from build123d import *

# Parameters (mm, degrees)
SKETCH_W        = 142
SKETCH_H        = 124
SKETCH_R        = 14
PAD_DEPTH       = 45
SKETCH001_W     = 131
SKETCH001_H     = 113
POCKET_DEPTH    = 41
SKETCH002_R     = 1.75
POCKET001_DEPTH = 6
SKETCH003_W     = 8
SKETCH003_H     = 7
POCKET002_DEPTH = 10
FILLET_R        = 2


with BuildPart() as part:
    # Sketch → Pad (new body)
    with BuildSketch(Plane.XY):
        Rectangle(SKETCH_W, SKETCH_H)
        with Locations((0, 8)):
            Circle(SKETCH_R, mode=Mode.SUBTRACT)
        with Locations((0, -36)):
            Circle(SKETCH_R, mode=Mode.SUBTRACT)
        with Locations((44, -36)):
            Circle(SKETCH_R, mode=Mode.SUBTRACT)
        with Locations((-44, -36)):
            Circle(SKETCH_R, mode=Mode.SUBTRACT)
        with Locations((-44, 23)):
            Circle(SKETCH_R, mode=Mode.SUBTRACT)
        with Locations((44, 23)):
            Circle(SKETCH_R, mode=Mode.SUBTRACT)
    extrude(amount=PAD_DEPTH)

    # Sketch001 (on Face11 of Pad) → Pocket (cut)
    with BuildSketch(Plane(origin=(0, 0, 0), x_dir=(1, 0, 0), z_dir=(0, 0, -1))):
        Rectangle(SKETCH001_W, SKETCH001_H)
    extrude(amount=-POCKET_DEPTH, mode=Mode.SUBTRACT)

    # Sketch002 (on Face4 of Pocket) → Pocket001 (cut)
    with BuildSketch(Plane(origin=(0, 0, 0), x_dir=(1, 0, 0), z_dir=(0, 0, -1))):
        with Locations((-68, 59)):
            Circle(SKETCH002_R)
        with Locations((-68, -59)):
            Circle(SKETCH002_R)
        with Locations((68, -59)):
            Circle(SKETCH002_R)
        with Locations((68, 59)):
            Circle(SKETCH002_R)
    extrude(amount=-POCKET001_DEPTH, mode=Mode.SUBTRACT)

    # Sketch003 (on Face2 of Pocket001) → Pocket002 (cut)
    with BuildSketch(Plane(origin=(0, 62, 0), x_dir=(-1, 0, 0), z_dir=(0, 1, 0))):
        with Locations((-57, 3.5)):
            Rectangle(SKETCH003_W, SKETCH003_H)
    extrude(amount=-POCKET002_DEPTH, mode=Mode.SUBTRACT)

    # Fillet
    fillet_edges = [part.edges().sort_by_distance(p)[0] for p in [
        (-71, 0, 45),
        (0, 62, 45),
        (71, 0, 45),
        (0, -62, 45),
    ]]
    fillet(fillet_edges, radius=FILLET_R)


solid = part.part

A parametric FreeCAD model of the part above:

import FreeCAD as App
import Part
import Sketcher

V = App.Vector
Q = App.Units.Quantity


def edges_at(feature, points):
    """Names of the edges that pass closest to the given points."""
    edges = feature.Shape.Edges
    near = lambda p: min(range(len(edges)), key=lambda i: edges[i].distToShape(Part.Vertex(*p))[0])
    return sorted({f"Edge{near(p) + 1}" for p in points})


def add_polygon(sketch, points):
    """Adds a closed chain of lines whose ends are joined by coincident constraints."""
    first, n = sketch.GeometryCount, len(points)
    for a, b in zip(points, points[1:] + points[:1]):
        sketch.addGeometry(Part.LineSegment(App.Vector(*a, 0), App.Vector(*b, 0)), False)
    for i in range(n):
        sketch.addConstraint(Sketcher.Constraint("Coincident", first + i, 2, first + (i + 1) % n, 1))

doc = App.newDocument("Part")
body = doc.addObject("PartDesign::Body", "Body")

# Sketch on XY plane
sketch1 = body.newObject("Sketcher::SketchObject", "Sketch")
sketch1.AttachmentSupport = (doc.getObject("XY_Plane"), [""])
sketch1.MapMode = "FlatFace"
add_polygon(sketch1, [(-71, 62), (-71, -62), (71, -62), (71, 62)])  # lines 0-3
sketch1.addGeometry(Part.Circle(V(-44, -36, 0), V(0, 0, 1), 14), False)  # 4
sketch1.addGeometry(Part.Circle(V(0, -36, 0), V(0, 0, 1), 14), False)  # 5
sketch1.addGeometry(Part.Circle(V(44, -36, 0), V(0, 0, 1), 14), False)  # 6
sketch1.addGeometry(Part.Circle(V(-44, 23, 0), V(0, 0, 1), 14), False)  # 7
sketch1.addGeometry(Part.Circle(V(0, 8, 0), V(0, 0, 1), 14), False)  # 8
sketch1.addGeometry(Part.Circle(V(44, 23, 0), V(0, 0, 1), 14), False)  # 9
sketch1.addConstraint(Sketcher.Constraint("Vertical", 0))
sketch1.addConstraint(Sketcher.Constraint("Horizontal", 1))
sketch1.addConstraint(Sketcher.Constraint("Vertical", 2))
sketch1.addConstraint(Sketcher.Constraint("Horizontal", 3))
sketch1.addConstraint(Sketcher.Constraint("Equal", 4, 5))
sketch1.addConstraint(Sketcher.Constraint("Equal", 5, 6))
sketch1.addConstraint(Sketcher.Constraint("Equal", 6, 7))
sketch1.addConstraint(Sketcher.Constraint("Equal", 7, 8))
sketch1.addConstraint(Sketcher.Constraint("Equal", 8, 9))
sketch1.addConstraint(Sketcher.Constraint("Symmetric", 0, 2, 2, 2, -1, 1))
sketch1.addConstraint(Sketcher.Constraint("Symmetric", 4, 3, 6, 3, -2))
sketch1.addConstraint(Sketcher.Constraint("Symmetric", 7, 3, 9, 3, -2))
sketch1.addConstraint(Sketcher.Constraint("PointOnObject", 5, 3, -2))
sketch1.addConstraint(Sketcher.Constraint("PointOnObject", 8, 3, -2))
sketch1.addConstraint(Sketcher.Constraint("Horizontal", 4, 3, 5, 3))
sketch1.addConstraint(Sketcher.Constraint("Vertical", 4, 3, 7, 3))
sketch1.addConstraint(Sketcher.Constraint("Diameter", 4, Q("28 mm")))
sketch1.addConstraint(Sketcher.Constraint("DistanceX", 1, 1, 1, 2, Q("142 mm")))
sketch1.addConstraint(Sketcher.Constraint("DistanceY", 0, 2, 0, 1, Q("124 mm")))
sketch1.addConstraint(Sketcher.Constraint("DistanceX", 4, 3, -1, 1, Q("44 mm")))
sketch1.addConstraint(Sketcher.Constraint("DistanceY", 4, 3, -1, 1, Q("36 mm")))
sketch1.addConstraint(Sketcher.Constraint("DistanceY", -1, 1, 7, 3, Q("23 mm")))
sketch1.addConstraint(Sketcher.Constraint("DistanceY", -1, 1, 8, 3, Q("8 mm")))
pad1 = body.newObject("PartDesign::Pad", "Pad")
pad1.Profile = sketch1
pad1.Length = 45

# Sketch on XY plane
sketch2 = body.newObject("Sketcher::SketchObject", "Sketch001")
sketch2.AttachmentSupport = (doc.getObject("XY_Plane"), [""])
sketch2.MapMode = "FlatFace"
add_polygon(sketch2, [(-66, -56), (-66, 56), (66, 56), (66, -56)])  # lines 0-3
sketch2.addConstraint(Sketcher.Constraint("Vertical", 0))
sketch2.addConstraint(Sketcher.Constraint("Horizontal", 1))
sketch2.addConstraint(Sketcher.Constraint("Vertical", 2))
sketch2.addConstraint(Sketcher.Constraint("Horizontal", 3))
sketch2.addConstraint(Sketcher.Constraint("Symmetric", 0, 2, 2, 2, -1, 1))
sketch2.addConstraint(Sketcher.Constraint("DistanceX", 1, 1, 1, 2, Q("131 mm")))
sketch2.addConstraint(Sketcher.Constraint("DistanceY", 0, 1, 0, 2, Q("113 mm")))
pocket1 = body.newObject("PartDesign::Pocket", "Pocket")
pocket1.Profile = sketch2
pocket1.Length = 41
pocket1.Reversed = True

# Sketch on XY plane
sketch3 = body.newObject("Sketcher::SketchObject", "Sketch002")
sketch3.AttachmentSupport = (doc.getObject("XY_Plane"), [""])
sketch3.MapMode = "FlatFace"
sketch3.addGeometry(Part.Circle(V(-68, -59, 0), V(0, 0, 1), 1.8), False)
sketch3.addGeometry(Part.Circle(V(-68, 59, 0), V(0, 0, 1), 1.8), False)
sketch3.addGeometry(Part.Circle(V(68, 59, 0), V(0, 0, 1), 1.8), False)
sketch3.addGeometry(Part.Circle(V(68, -59, 0), V(0, 0, 1), 1.8), False)
sketch3.addConstraint(Sketcher.Constraint("Equal", 0, 1))
sketch3.addConstraint(Sketcher.Constraint("Equal", 1, 2))
sketch3.addConstraint(Sketcher.Constraint("Equal", 2, 3))
sketch3.addConstraint(Sketcher.Constraint("Symmetric", 0, 3, 2, 3, -1, 1))
sketch3.addConstraint(Sketcher.Constraint("Symmetric", 1, 3, 3, 3, -1, 1))
sketch3.addConstraint(Sketcher.Constraint("Symmetric", 1, 3, 2, 3, -2))
sketch3.addConstraint(Sketcher.Constraint("Diameter", 0, Q("3.5 mm")))
sketch3.addConstraint(Sketcher.Constraint("DistanceX", 0, 3, -1, 1, Q("68 mm")))
sketch3.addConstraint(Sketcher.Constraint("DistanceY", 0, 3, -1, 1, Q("59 mm")))
pocket2 = body.newObject("PartDesign::Pocket", "Pocket001")
pocket2.Profile = sketch3
pocket2.Length = 6
pocket2.Reversed = True

# Sketch on XZ plane
sketch4 = body.newObject("Sketcher::SketchObject", "Sketch003")
sketch4.AttachmentSupport = (doc.getObject("XZ_Plane"), [""])
sketch4.MapMode = "FlatFace"
sketch4.AttachmentOffset = App.Placement(V(0, 0, -62), App.Rotation())
add_polygon(sketch4, [(61, 7), (61, 0), (53, 0), (53, 7)])  # lines 0-3
sketch4.addConstraint(Sketcher.Constraint("Vertical", 0))
sketch4.addConstraint(Sketcher.Constraint("Horizontal", 1))
sketch4.addConstraint(Sketcher.Constraint("Vertical", 2))
sketch4.addConstraint(Sketcher.Constraint("Horizontal", 3))
sketch4.addConstraint(Sketcher.Constraint("PointOnObject", 0, 2, -1))
sketch4.addConstraint(Sketcher.Constraint("DistanceX", 1, 2, 1, 1, Q("8 mm")))
sketch4.addConstraint(Sketcher.Constraint("DistanceY", 0, 2, 0, 1, Q("7 mm")))
sketch4.addConstraint(Sketcher.Constraint("DistanceX", -1, 1, 0, 2, Q("61 mm")))
pocket3 = body.newObject("PartDesign::Pocket", "Pocket002")
pocket3.Profile = sketch4
pocket3.Length = 10
pocket3.Reversed = True
doc.recompute()

fillet = body.newObject("PartDesign::Fillet", "Fillet")
fillet.Base = (pocket3, edges_at(pocket3, [
    (-71, 0, 45),
    (0, 62, 45),
    (71, 0, 45),
    (0, -62, 45),
]))
fillet.Radius = 2

doc.recompute()
